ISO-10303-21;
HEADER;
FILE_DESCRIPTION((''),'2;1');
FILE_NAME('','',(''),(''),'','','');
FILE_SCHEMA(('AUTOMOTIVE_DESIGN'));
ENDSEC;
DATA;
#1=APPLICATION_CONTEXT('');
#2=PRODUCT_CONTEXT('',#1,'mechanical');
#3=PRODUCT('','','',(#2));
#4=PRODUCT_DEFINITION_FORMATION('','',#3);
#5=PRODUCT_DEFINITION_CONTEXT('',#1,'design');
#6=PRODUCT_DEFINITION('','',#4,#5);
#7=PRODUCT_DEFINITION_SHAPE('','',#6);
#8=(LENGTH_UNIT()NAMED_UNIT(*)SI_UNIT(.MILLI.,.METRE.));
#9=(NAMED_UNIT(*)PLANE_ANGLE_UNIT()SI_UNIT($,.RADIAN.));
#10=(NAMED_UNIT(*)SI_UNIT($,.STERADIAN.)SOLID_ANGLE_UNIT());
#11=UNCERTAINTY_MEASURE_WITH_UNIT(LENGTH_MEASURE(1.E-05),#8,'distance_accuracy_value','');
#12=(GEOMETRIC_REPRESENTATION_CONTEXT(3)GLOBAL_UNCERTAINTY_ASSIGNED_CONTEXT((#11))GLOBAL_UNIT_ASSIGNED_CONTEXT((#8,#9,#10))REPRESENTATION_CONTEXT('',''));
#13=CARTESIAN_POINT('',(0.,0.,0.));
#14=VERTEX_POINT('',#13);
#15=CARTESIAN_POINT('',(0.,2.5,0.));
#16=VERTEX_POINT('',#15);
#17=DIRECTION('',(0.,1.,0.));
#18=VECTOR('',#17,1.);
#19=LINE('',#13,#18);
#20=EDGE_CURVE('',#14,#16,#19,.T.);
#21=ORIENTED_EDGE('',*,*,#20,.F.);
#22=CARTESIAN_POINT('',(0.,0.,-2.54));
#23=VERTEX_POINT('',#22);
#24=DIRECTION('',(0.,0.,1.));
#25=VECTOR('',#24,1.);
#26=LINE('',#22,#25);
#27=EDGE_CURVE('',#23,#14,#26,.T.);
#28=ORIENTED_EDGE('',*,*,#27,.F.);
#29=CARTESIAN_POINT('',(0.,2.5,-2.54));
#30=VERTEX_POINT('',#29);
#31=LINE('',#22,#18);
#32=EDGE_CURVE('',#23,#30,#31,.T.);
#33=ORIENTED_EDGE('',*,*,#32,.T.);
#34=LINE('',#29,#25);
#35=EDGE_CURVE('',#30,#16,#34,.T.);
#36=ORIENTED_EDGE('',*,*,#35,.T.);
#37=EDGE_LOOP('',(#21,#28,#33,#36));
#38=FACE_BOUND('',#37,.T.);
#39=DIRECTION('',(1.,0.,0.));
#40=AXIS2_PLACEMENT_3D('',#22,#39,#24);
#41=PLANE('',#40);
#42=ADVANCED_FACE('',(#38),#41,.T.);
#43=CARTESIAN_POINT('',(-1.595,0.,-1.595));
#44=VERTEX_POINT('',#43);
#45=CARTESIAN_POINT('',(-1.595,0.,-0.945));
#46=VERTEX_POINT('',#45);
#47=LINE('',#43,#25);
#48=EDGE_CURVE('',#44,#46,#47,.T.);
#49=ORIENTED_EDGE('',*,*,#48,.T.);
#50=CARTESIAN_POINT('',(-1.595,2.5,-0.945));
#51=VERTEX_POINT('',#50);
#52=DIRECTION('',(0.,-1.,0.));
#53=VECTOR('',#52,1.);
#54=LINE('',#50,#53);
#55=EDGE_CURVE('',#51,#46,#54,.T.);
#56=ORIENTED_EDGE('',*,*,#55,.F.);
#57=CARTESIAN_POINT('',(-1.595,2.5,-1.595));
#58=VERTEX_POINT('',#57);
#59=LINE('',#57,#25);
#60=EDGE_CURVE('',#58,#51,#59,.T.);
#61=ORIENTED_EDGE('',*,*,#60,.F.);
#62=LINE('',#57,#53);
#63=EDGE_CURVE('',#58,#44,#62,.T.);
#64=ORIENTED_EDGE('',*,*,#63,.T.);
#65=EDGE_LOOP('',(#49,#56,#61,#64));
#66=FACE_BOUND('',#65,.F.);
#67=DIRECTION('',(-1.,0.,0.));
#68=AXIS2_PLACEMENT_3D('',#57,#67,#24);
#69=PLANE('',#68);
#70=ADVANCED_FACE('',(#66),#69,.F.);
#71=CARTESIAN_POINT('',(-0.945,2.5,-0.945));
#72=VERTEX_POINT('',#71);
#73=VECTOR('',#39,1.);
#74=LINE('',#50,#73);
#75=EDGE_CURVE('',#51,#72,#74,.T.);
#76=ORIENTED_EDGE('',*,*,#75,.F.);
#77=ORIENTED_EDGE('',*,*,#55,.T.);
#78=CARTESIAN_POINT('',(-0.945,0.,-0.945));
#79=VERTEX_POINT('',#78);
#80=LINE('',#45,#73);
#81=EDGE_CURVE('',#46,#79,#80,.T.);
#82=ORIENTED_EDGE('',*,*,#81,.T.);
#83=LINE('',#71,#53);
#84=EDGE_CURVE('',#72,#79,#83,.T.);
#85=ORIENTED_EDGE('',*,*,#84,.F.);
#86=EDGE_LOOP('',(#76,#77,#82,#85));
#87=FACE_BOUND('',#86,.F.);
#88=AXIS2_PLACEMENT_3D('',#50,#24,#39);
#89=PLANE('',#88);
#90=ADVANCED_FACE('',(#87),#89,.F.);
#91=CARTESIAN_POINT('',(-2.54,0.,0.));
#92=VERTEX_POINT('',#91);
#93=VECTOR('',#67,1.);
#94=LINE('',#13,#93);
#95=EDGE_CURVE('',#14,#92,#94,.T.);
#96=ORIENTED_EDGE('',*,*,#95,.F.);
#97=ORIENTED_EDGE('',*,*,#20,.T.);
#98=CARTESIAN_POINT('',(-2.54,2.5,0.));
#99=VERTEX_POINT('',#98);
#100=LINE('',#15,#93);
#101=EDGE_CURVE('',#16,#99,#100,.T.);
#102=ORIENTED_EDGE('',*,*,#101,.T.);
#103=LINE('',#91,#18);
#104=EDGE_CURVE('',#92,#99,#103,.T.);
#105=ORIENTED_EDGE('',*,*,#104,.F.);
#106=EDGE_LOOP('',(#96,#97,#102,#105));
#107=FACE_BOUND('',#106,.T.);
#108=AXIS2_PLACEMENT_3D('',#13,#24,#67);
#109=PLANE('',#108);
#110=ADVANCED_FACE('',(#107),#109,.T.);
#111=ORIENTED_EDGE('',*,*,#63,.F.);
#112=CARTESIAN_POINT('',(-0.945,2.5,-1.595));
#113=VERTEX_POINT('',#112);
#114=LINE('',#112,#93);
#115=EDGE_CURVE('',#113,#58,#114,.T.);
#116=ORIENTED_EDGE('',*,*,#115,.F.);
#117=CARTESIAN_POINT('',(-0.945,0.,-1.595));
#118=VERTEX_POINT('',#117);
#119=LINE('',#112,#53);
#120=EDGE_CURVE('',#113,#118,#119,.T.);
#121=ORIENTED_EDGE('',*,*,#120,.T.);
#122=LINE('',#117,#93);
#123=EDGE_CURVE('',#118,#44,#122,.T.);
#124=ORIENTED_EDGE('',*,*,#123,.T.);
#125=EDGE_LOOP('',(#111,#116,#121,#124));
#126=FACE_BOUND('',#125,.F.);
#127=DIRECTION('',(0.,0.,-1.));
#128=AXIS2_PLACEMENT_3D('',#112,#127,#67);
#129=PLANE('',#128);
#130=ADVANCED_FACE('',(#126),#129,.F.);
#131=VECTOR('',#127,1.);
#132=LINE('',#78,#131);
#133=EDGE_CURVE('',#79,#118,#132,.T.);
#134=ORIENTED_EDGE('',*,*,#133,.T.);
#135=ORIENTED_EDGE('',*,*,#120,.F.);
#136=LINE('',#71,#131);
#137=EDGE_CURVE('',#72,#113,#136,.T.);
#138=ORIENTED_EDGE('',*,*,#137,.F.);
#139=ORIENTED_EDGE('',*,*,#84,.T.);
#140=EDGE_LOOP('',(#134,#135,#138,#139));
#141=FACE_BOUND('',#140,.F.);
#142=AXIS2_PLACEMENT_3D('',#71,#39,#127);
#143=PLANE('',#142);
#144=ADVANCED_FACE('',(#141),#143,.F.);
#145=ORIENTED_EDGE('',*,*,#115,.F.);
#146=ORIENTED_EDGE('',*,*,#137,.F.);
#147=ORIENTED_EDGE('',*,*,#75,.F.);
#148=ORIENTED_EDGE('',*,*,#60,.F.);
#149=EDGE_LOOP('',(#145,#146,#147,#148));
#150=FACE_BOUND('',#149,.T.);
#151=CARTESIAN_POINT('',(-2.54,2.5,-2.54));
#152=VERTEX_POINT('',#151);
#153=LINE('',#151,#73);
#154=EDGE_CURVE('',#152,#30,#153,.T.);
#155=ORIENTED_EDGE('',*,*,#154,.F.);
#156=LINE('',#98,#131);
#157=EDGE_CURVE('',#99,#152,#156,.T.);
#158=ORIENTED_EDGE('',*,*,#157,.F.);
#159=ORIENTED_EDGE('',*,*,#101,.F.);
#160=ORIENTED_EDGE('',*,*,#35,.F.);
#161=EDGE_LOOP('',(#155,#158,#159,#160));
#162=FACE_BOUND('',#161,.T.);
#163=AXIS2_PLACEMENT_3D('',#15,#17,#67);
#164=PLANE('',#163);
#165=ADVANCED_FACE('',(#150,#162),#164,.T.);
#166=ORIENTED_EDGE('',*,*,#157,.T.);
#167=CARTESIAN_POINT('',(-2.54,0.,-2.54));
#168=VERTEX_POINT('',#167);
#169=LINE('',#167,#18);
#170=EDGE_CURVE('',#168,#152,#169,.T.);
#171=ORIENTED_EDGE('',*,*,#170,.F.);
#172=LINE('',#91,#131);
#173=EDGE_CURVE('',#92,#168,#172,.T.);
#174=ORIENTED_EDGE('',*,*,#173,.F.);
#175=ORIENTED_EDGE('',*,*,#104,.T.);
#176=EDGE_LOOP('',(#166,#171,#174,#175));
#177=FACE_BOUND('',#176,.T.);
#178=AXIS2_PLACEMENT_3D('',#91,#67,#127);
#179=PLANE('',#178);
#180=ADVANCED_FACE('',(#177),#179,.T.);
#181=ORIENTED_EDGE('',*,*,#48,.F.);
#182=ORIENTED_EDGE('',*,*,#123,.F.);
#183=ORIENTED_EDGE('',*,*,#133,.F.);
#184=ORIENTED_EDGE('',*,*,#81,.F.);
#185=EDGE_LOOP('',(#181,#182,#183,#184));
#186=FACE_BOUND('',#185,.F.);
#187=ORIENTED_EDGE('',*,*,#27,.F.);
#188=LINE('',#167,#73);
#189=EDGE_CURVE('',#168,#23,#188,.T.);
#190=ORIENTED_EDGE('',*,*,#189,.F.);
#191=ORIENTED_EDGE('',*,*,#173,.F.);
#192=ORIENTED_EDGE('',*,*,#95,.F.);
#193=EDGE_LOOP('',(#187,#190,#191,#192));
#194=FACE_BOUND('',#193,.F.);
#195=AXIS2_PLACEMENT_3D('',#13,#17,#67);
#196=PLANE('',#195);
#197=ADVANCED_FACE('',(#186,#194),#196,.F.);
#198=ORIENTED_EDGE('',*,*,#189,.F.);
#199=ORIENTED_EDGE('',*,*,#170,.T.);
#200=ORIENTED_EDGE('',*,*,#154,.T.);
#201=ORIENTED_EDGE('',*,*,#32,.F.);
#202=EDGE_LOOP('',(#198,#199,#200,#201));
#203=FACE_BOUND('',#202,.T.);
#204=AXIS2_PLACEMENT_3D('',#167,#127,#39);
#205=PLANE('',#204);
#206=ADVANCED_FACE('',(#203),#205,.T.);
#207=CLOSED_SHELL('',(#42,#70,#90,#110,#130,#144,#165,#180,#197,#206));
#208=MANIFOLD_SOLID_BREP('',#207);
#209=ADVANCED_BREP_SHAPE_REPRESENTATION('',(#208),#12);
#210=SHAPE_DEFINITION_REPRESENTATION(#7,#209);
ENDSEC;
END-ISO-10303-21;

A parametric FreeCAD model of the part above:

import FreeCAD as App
import Part
import Sketcher


def add_polygon(sketch, points):
    """Adds a closed chain of lines whose ends are joined by coincident constraints."""
    first, n = sketch.GeometryCount, len(points)
    for a, b in zip(points, points[1:] + points[:1]):
        sketch.addGeometry(Part.LineSegment(App.Vector(*a, 0), App.Vector(*b, 0)), False)
    for i in range(n):
        sketch.addConstraint(Sketcher.Constraint("Coincident", first + i, 2, first + (i + 1) % n, 1))

doc = App.newDocument("Part")
body = doc.addObject("PartDesign::Body", "Body")

# Sketch on XZ plane
sketch1 = body.newObject("Sketcher::SketchObject", "Sketch")
sketch1.AttachmentSupport = (doc.getObject("XZ_Plane"), [""])
sketch1.MapMode = "FlatFace"
add_polygon(sketch1, [(-2.5, 0), (0, 0), (0, -2.5), (-2.5, -2.5)])  # lines 0-3
sketch1.addConstraint([
    Sketcher.Constraint("Horizontal", 0),
    Sketcher.Constraint("Vertical", 1),
    Sketcher.Constraint("Horizontal", 2),
    Sketcher.Constraint("Vertical", 3),
    Sketcher.Constraint("Coincident", 0, 2, -1, 1),
    Sketcher.Constraint("Equal", 2, 1),
    Sketcher.Constraint("DistanceX", 0, 1, 0, 2, 2.54),
])
pad1 = body.newObject("PartDesign::Pad", "Pad")
pad1.Profile = sketch1
pad1.Length = 2.5
pad1.Reversed = True

# Sketch on XZ plane
sketch2 = body.newObject("Sketcher::SketchObject", "Sketch001")
sketch2.AttachmentSupport = (doc.getObject("XZ_Plane"), [""])
sketch2.MapMode = "FlatFace"
sketch2.AttachmentOffset = App.Placement(App.Vector(0, 0, -2.5), App.Rotation())
add_polygon(sketch2, [(-0.9, -0.9), (-0.9, -1.6), (-1.6, -1.6), (-1.6, -0.9)])  # lines 0-3
sketch2.addConstraint([
    Sketcher.Constraint("Vertical", 0),
    Sketcher.Constraint("Horizontal", 1),
    Sketcher.Constraint("Vertical", 2),
    Sketcher.Constraint("Horizontal", 3),
    Sketcher.Constraint("Equal", 3, 0),
    Sketcher.Constraint("DistanceX", 1, 2, 1, 1, 0.65),
    Sketcher.Constraint("DistanceX", 0, 2, -1, 1, 0.945),
    Sketcher.Constraint("DistanceY", 2, 2, -1, 1, 0.945),
])
pocket1 = body.newObject("PartDesign::Pocket", "Pocket")
pocket1.Profile = sketch2
pocket1.Length = 2.5
pocket1.Reversed = True

doc.recompute()
